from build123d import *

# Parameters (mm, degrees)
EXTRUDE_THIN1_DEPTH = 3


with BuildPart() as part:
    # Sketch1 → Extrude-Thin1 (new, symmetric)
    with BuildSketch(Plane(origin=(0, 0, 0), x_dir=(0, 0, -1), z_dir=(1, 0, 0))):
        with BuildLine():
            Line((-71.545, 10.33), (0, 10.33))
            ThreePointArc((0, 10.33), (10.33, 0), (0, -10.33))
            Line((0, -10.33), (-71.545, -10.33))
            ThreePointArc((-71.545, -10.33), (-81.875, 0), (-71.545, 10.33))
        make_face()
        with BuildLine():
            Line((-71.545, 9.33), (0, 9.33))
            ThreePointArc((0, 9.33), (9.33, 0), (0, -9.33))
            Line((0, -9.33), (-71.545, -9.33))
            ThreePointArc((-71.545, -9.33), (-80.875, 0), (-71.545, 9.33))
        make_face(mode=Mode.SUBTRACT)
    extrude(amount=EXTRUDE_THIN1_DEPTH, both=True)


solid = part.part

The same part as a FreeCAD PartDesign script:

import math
import FreeCAD as App
import Part
import Sketcher
Q = App.Units.Quantity

doc = App.newDocument("Part")
body = doc.addObject("PartDesign::Body", "Body")

# Sketch on YZ plane
sketch1 = body.newObject("Sketcher::SketchObject", "Sketch")
sketch1.AttachmentSupport = (doc.getObject("YZ_Plane"), [""])
sketch1.MapMode = "FlatFace"
sketch1.addGeometry(Part.LineSegment(App.Vector(10, 0, 0), App.Vector(10, 72, 0)), False)
sketch1.addGeometry(Part.ArcOfCircle(Part.Circle(App.Vector(0, 72, 0), App.Vector(0, 0, 1), 10), math.radians(0), math.radians(180)), False)
sketch1.addGeometry(Part.LineSegment(App.Vector(-10, 72, 0), App.Vector(-10, 0, 0)), False)
sketch1.addGeometry(Part.ArcOfCircle(Part.Circle(App.Vector(0, 0, 0), App.Vector(0, 0, 1), 10), math.radians(180), math.radians(360)), False)
sketch1.addGeometry(Part.LineSegment(App.Vector(9, 72, 0), App.Vector(9, 0, 0)), False)
sketch1.addGeometry(Part.ArcOfCircle(Part.Circle(App.Vector(0, 0, 0), App.Vector(0, 0, 1), 9), math.radians(180), math.radians(360)), False)
sketch1.addGeometry(Part.LineSegment(App.Vector(-9, 0, 0), App.Vector(-9, 72, 0)), False)
sketch1.addGeometry(Part.ArcOfCircle(Part.Circle(App.Vector(0, 72, 0), App.Vector(0, 0, 1), 9), math.radians(0), math.radians(180)), False)
sketch1.addConstraint(Sketcher.Constraint("Tangent", 0, 2, 1, 1))
sketch1.addConstraint(Sketcher.Constraint("Tangent", 1, 2, 2, 1))
sketch1.addConstraint(Sketcher.Constraint("Tangent", 2, 2, 3, 1))
sketch1.addConstraint(Sketcher.Constraint("Tangent", 3, 2, 0, 1))
sketch1.addConstraint(Sketcher.Constraint("Tangent", 4, 2, 5, 2))
sketch1.addConstraint(Sketcher.Constraint("Tangent", 5, 1, 6, 1))
sketch1.addConstraint(Sketcher.Constraint("Tangent", 6, 2, 7, 2))
sketch1.addConstraint(Sketcher.Constraint("Tangent", 7, 1, 4, 1))
sketch1.addConstraint(Sketcher.Constraint("Vertical", 0))
sketch1.addConstraint(Sketcher.Constraint("Vertical", 2))
sketch1.addConstraint(Sketcher.Constraint("Vertical", 4))
sketch1.addConstraint(Sketcher.Constraint("Vertical", 6))
sketch1.addConstraint(Sketcher.Constraint("Coincident", 3, 3, -1, 1))
sketch1.addConstraint(Sketcher.Constraint("Coincident", 5, 3, -1, 1))
sketch1.addConstraint(Sketcher.Constraint("Horizontal", 7, 3, 0, 2))
sketch1.addConstraint(Sketcher.Constraint("Radius", 1, Q("10.33 mm")))
sketch1.addConstraint(Sketcher.Constraint("Radius", 5, Q("9.33 mm")))
sketch1.addConstraint(Sketcher.Constraint("DistanceY", 0, 1, 0, 2, Q("71.545 mm")))
pad1 = body.newObject("PartDesign::Pad", "Pad")
pad1.Profile = sketch1
pad1.Length = 6
pad1.Midplane = True

doc.recompute()
